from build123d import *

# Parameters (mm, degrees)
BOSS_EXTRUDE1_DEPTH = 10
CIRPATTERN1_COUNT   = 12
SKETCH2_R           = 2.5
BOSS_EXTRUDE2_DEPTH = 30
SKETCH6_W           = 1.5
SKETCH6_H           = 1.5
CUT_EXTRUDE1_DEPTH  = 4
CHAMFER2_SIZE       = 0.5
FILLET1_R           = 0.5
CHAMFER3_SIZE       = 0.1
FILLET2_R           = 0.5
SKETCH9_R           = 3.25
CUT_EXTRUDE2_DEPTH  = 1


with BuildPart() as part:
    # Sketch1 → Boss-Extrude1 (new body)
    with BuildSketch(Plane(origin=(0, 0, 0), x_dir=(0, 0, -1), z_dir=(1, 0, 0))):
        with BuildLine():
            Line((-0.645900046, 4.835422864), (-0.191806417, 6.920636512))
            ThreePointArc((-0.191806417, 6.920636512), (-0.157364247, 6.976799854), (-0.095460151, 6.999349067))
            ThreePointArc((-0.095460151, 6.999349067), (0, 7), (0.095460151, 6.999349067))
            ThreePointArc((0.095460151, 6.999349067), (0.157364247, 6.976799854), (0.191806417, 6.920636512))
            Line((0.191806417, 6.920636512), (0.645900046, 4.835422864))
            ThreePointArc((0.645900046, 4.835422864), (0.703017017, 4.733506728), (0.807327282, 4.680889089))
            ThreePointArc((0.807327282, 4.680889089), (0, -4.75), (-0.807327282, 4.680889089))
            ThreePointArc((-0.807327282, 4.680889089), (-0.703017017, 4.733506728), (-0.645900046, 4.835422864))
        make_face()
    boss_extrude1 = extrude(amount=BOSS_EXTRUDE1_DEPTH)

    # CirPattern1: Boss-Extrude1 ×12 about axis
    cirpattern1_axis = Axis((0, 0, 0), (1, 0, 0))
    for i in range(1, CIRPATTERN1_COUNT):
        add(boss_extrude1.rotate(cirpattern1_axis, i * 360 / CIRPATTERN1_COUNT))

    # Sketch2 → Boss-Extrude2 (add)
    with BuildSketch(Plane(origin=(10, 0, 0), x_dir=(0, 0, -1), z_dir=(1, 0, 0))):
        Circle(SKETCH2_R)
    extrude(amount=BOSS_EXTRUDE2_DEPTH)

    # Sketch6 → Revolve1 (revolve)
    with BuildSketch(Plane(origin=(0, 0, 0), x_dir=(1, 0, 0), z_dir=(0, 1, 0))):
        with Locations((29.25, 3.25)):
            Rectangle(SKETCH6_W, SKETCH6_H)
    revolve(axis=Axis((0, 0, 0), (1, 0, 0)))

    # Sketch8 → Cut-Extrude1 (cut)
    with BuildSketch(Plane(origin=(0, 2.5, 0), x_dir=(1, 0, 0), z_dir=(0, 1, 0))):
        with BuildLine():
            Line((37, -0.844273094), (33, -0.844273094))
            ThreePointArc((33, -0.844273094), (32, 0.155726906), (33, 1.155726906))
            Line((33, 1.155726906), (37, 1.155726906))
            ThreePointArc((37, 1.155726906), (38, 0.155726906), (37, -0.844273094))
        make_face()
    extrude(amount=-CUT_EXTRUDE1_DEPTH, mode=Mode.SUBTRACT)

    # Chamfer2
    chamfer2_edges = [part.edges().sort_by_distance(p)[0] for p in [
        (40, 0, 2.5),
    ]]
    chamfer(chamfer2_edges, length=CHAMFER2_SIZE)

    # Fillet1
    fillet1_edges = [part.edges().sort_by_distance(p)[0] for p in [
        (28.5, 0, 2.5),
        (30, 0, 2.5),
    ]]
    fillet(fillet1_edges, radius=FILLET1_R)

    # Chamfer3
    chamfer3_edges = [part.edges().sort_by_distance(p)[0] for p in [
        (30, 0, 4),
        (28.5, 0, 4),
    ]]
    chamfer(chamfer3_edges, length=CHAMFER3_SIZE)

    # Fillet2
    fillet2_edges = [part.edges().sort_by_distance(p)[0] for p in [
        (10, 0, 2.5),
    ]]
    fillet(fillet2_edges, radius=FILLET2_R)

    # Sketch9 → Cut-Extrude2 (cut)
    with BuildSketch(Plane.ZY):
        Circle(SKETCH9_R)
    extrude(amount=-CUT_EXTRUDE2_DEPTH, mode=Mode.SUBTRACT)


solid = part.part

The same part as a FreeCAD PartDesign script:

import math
import FreeCAD as App
import Part
import Sketcher

V = App.Vector
Q = App.Units.Quantity


def edges_at(feature, points):
    """Names of the edges that pass closest to the given points."""
    edges = feature.Shape.Edges
    near = lambda p: min(range(len(edges)), key=lambda i: edges[i].distToShape(Part.Vertex(*p))[0])
    return sorted({f"Edge{near(p) + 1}" for p in points})

doc = App.newDocument("Part")
params = doc.addObject("Spreadsheet::Sheet", "Params")
for row, (alias, value) in enumerate([
    ("sketch1_radius", "7.000002 mm"),
    ("sketch1_radius2", "0.2 mm"),
    ("sketch1_radius3", "0.1 mm"),
    ("sketch1_radius4", "4.75 mm"),
    ("pad1_length", "10 mm"),
    ("sketch2_diameter", "5 mm"),
    ("pad2_length", "30 mm"),
    ("sketch3_width", "1.5 mm"),
    ("revolution_angle", "360 deg"),
    ("sketch4_radius", "1 mm"),
    ("sketch4_width", "4 mm"),
    ("pocket1_length", "4 mm"),
    ("chamfer_size", "0.5 mm"),
    ("fillet_radius", "0.5 mm"),
    ("chamfer2_size", "0.1 mm"),
    ("fillet2_radius", "0.5 mm"),
    ("sketch5_diameter", "6.5 mm"),
    ("pocket2_length", "1 mm"),
], start=1):
    params.set(f"A{row}", alias)
    params.set(f"B{row}", "=" + value)
    params.setAlias(f"B{row}", alias)

body = doc.addObject("PartDesign::Body", "Body")

# Sketch on YZ plane
sketch1 = body.newObject("Sketcher::SketchObject", "Sketch")
sketch1.AttachmentSupport = (doc.getObject("YZ_Plane"), [""])
sketch1.MapMode = "FlatFace"
sketch1.addGeometry([
    Part.LineSegment(V(6.920637, 0.191806, 0), V(4.835423, 0.6459, 0)),  # 0
    Part.ArcOfCircle(Part.Circle(V(4.877979, 0.84132, 0), V(0, 0, 1), 0.2), math.radians(-170.214296), math.radians(-102.285403)),  # 1
    Part.ArcOfCircle(Part.Circle(V(0, 0, 0), V(0, 0, 1), 4.75), math.radians(9.785705), math.radians(350.214295)),  # 2
    Part.ArcOfCircle(Part.Circle(V(4.877979, -0.84132, 0), V(0, 0, 1), 0.2), math.radians(102.285403), math.radians(170.214296)),  # 3
    Part.LineSegment(V(4.835423, -0.6459, 0), V(6.920637, -0.191806, 0)),  # 4
    Part.ArcOfCircle(Part.Circle(V(6.899358, -0.094096, 0), V(0, 0, 1), 0.1), math.radians(-77.714598), math.radians(-0.781375)),  # 5
    Part.ArcOfCircle(Part.Circle(V(-0.000002, 0, 0), V(0, 0, 1), 7.000002), math.radians(-0.781376), math.radians(0.781376)),  # 6
    Part.ArcOfCircle(Part.Circle(V(6.899358, 0.094096, 0), V(0, 0, 1), 0.1), math.radians(0.781375), math.radians(77.714598)),  # 7
], False)
sketch1.addConstraint([
    Sketcher.Constraint("Tangent", 0, 2, 1, 2),
    Sketcher.Constraint("Tangent", 1, 1, 2, 1),
    Sketcher.Constraint("Tangent", 2, 2, 3, 2),
    Sketcher.Constraint("Tangent", 3, 1, 4, 1),
    Sketcher.Constraint("Tangent", 4, 2, 5, 1),
    Sketcher.Constraint("Tangent", 5, 2, 6, 1),
    Sketcher.Constraint("Tangent", 6, 2, 7, 1),
    Sketcher.Constraint("Tangent", 7, 2, 0, 1),
    Sketcher.Constraint("Coincident", 2, 3, -1, 1),
    Sketcher.Constraint("Coincident", 6, 3, -1, 1),
    Sketcher.Constraint("Equal", 1, 3),
    Sketcher.Constraint("Equal", 5, 7),
    Sketcher.Constraint("Symmetric", 0, 2, 3, 1, -1),
    Sketcher.Constraint("Radius", 6, Q("7.000002 mm")),
    Sketcher.Constraint("Radius", 1, Q("0.2 mm")),
    Sketcher.Constraint("Radius", 5, Q("0.1 mm")),
    Sketcher.Constraint("Radius", 2, Q("4.75 mm")),
    Sketcher.Constraint("DistanceY", -1, 1, 0, 2, Q("0.6459 mm")),
    Sketcher.Constraint("DistanceY", -1, 1, 1, 3, Q("0.84132 mm")),
])
sketch1.setExpression("Constraints[13]", "Params.sketch1_radius")
sketch1.setExpression("Constraints[14]", "Params.sketch1_radius2")
sketch1.setExpression("Constraints[15]", "Params.sketch1_radius3")
sketch1.setExpression("Constraints[16]", "Params.sketch1_radius4")
pad1 = body.newObject("PartDesign::Pad", "Pad")
pad1.Profile = sketch1
pad1.setExpression("Length", "Params.pad1_length")
doc.recompute()

polarpattern = body.newObject("PartDesign::PolarPattern", "PolarPattern")
polarpattern.Originals = [pad1]
polarpattern.Axis = (doc.getObject("X_Axis"), [""])
polarpattern.Angle = 360
polarpattern.Occurrences = 12
body.Tip = polarpattern

# Sketch on YZ plane
sketch2 = body.newObject("Sketcher::SketchObject", "Sketch001")
sketch2.AttachmentSupport = (doc.getObject("YZ_Plane"), [""])
sketch2.MapMode = "FlatFace"
sketch2.AttachmentOffset = App.Placement(V(0, 0, 10), App.Rotation())
sketch2.addGeometry(Part.Circle(V(0, 0, 0), V(0, 0, 1), 2.5), False)
sketch2.addConstraint([
    Sketcher.Constraint("Coincident", 0, 3, -1, 1),
    Sketcher.Constraint("Diameter", 0, Q("5 mm")),
])
sketch2.setExpression("Constraints[1]", "Params.sketch2_diameter")
pad2 = body.newObject("PartDesign::Pad", "Pad001")
pad2.Profile = sketch2
pad2.setExpression("Length", "Params.pad2_length")

# Sketch on XZ plane
sketch3 = body.newObject("Sketcher::SketchObject", "Sketch002")
sketch3.AttachmentSupport = (doc.getObject("XZ_Plane"), [""])
sketch3.MapMode = "FlatFace"
sketch3.addGeometry([
    Part.LineSegment(V(28.5, -4, 0), V(28.5, -2.5, 0)),
    Part.LineSegment(V(28.5, -2.5, 0), V(30, -2.5, 0)),
    Part.LineSegment(V(30, -2.5, 0), V(30, -4, 0)),
    Part.LineSegment(V(30, -4, 0), V(28.5, -4, 0)),
], False)
sketch3.addConstraint([
    Sketcher.Constraint("Coincident", 0, 2, 1, 1),
    Sketcher.Constraint("Coincident", 1, 2, 2, 1),
    Sketcher.Constraint("Coincident", 2, 2, 3, 1),
    Sketcher.Constraint("Coincident", 3, 2, 0, 1),
    Sketcher.Constraint("Vertical", 0),
    Sketcher.Constraint("Horizontal", 1),
    Sketcher.Constraint("Vertical", 2),
    Sketcher.Constraint("Horizontal", 3),
    Sketcher.Constraint("Equal", 3, 0),
    Sketcher.Constraint("DistanceX", 1, 1, 1, 2, Q("1.5 mm")),
    Sketcher.Constraint("DistanceX", -1, 1, 1, 2, Q("30 mm")),
    Sketcher.Constraint("DistanceY", 2, 2, -1, 1, Q("4 mm")),
])
sketch3.setExpression("Constraints[9]", "Params.sketch3_width")
revolution = body.newObject("PartDesign::Revolution", "Revolution")
revolution.Profile = sketch3
revolution.ReferenceAxis = (sketch3, ["H_Axis"])
revolution.setExpression("Angle", "Params.revolution_angle")

# Sketch on XZ plane
sketch4 = body.newObject("Sketcher::SketchObject", "Sketch003")
sketch4.AttachmentSupport = (doc.getObject("XZ_Plane"), [""])
sketch4.MapMode = "FlatFace"
sketch4.AttachmentOffset = App.Placement(V(0, 0, -2.5), App.Rotation())
sketch4.addGeometry([
    Part.LineSegment(V(33, 0.844273, 0), V(37, 0.844273, 0)),
    Part.ArcOfCircle(Part.Circle(V(37, -0.155727, 0), V(0, 0, 1), 1), math.radians(-90), math.radians(90)),
    Part.LineSegment(V(37, -1.155727, 0), V(33, -1.155727, 0)),
    Part.ArcOfCircle(Part.Circle(V(33, -0.155727, 0), V(0, 0, 1), 1), math.radians(90), math.radians(270)),
], False)
sketch4.addConstraint([
    Sketcher.Constraint("Tangent", 0, 2, 1, 2),
    Sketcher.Constraint("Tangent", 1, 1, 2, 1),
    Sketcher.Constraint("Tangent", 2, 2, 3, 2),
    Sketcher.Constraint("Tangent", 3, 1, 0, 1),
    Sketcher.Constraint("Horizontal", 0),
    Sketcher.Constraint("Horizontal", 2),
    Sketcher.Constraint("Radius", 1, Q("1 mm")),
    Sketcher.Constraint("DistanceX", 0, 1, 0, 2, Q("4 mm")),
    Sketcher.Constraint("DistanceX", -1, 1, 1, 3, Q("37 mm")),
    Sketcher.Constraint("DistanceY", 1, 3, -1, 1, Q("0.155727 mm")),
])
sketch4.setExpression("Constraints[6]", "Params.sketch4_radius")
sketch4.setExpression("Constraints[7]", "Params.sketch4_width")
pocket1 = body.newObject("PartDesign::Pocket", "Pocket")
pocket1.Profile = sketch4
pocket1.setExpression("Length", "Params.pocket1_length")
pocket1.Reversed = True
doc.recompute()

chamfer = body.newObject("PartDesign::Chamfer", "Chamfer")
chamfer.Base = (pocket1, edges_at(pocket1, [(40, 0, 2.5)]))
chamfer.setExpression("Size", "Params.chamfer_size")
doc.recompute()

fillet = body.newObject("PartDesign::Fillet", "Fillet")
fillet.Base = (chamfer, edges_at(chamfer, [(28.5, 0, 2.5), (30, 0, 2.5)]))
fillet.setExpression("Radius", "Params.fillet_radius")
doc.recompute()

chamfer2 = body.newObject("PartDesign::Chamfer", "Chamfer001")
chamfer2.Base = (fillet, edges_at(fillet, [(30, 0, 4), (28.5, 0, 4)]))
chamfer2.setExpression("Size", "Params.chamfer2_size")
doc.recompute()

fillet2 = body.newObject("PartDesign::Fillet", "Fillet001")
fillet2.Base = (chamfer2, edges_at(chamfer2, [(10, 0, 2.5)]))
fillet2.setExpression("Radius", "Params.fillet2_radius")

# Sketch on YZ plane
sketch5 = body.newObject("Sketcher::SketchObject", "Sketch004")
sketch5.AttachmentSupport = (doc.getObject("YZ_Plane"), [""])
sketch5.MapMode = "FlatFace"
sketch5.addGeometry(Part.Circle(V(0, 0, 0), V(0, 0, 1), 3.25), False)
sketch5.addConstraint([
    Sketcher.Constraint("Coincident", 0, 3, -1, 1),
    Sketcher.Constraint("Diameter", 0, Q("6.5 mm")),
])
sketch5.setExpression("Constraints[1]", "Params.sketch5_diameter")
pocket2 = body.newObject("PartDesign::Pocket", "Pocket001")
pocket2.Profile = sketch5
pocket2.setExpression("Length", "Params.pocket2_length")
pocket2.Reversed = True

doc.recompute()
